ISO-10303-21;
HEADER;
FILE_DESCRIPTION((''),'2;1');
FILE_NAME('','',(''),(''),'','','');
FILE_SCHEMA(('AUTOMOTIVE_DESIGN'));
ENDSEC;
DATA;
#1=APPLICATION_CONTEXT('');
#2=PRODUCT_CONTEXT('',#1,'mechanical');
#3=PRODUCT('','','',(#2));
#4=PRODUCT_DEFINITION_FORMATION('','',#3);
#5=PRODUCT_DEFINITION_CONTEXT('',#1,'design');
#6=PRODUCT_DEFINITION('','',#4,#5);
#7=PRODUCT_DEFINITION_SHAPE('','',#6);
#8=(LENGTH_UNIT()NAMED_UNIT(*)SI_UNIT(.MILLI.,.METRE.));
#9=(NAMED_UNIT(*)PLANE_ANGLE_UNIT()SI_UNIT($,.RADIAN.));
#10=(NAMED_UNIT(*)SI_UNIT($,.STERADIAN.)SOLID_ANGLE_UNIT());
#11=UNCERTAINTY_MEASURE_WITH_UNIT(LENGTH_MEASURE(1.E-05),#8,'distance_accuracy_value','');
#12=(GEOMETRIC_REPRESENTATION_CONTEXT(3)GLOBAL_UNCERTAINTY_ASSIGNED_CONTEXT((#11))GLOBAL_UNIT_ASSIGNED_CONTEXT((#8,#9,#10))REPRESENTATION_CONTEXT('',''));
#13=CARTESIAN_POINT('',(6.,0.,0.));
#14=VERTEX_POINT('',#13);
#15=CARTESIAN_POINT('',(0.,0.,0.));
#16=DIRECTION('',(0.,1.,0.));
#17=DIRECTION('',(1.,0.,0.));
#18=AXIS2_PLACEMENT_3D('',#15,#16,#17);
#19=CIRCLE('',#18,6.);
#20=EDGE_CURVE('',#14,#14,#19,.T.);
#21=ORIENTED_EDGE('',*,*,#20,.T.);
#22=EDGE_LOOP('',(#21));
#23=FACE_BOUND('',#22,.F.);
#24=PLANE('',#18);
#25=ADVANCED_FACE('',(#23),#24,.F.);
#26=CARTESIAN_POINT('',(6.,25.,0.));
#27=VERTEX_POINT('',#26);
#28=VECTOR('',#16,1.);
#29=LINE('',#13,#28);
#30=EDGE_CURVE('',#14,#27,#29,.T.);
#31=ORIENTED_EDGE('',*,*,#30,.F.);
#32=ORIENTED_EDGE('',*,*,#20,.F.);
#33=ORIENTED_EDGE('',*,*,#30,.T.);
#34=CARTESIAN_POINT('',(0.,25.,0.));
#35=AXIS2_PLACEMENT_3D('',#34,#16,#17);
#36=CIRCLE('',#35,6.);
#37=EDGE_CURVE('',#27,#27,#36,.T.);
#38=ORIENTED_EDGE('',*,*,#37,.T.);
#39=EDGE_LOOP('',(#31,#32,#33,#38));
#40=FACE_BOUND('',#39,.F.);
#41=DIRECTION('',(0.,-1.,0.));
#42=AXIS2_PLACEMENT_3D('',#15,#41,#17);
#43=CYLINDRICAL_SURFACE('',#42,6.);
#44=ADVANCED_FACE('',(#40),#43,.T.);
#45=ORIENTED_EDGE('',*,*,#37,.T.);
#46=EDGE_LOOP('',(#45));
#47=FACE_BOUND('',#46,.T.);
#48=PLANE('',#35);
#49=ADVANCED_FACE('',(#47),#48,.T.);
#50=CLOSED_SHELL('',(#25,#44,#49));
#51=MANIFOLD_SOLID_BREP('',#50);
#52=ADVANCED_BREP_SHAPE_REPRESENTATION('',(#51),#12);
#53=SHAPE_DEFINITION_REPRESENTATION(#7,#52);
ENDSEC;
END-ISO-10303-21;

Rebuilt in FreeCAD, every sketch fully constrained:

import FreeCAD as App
import Part
import Sketcher

V = App.Vector
Q = App.Units.Quantity

doc = App.newDocument("Part")
body = doc.addObject("PartDesign::Body", "Body")

# Sketch on XZ plane
sketch1 = doc.addObject("Sketcher::SketchObject", "Sketch")
body.addObject(sketch1)
sketch1.AttachmentSupport = (doc.XZ_Plane, [""])
sketch1.MapMode = "FlatFace"
sketch1.addGeometry(Part.Circle(V(0, 0, 0), V(0, 0, 1), 6), False)
sketch1.addConstraint([
    Sketcher.Constraint("Coincident", 0, 3, -1, 1),
    Sketcher.Constraint("Diameter", 0, Q("12 mm")),
])
pad1 = doc.addObject("PartDesign::Pad", "Pad")
body.addObject(pad1)
pad1.Profile = sketch1
pad1.Length = 25
pad1.Reversed = True

doc.recompute()
